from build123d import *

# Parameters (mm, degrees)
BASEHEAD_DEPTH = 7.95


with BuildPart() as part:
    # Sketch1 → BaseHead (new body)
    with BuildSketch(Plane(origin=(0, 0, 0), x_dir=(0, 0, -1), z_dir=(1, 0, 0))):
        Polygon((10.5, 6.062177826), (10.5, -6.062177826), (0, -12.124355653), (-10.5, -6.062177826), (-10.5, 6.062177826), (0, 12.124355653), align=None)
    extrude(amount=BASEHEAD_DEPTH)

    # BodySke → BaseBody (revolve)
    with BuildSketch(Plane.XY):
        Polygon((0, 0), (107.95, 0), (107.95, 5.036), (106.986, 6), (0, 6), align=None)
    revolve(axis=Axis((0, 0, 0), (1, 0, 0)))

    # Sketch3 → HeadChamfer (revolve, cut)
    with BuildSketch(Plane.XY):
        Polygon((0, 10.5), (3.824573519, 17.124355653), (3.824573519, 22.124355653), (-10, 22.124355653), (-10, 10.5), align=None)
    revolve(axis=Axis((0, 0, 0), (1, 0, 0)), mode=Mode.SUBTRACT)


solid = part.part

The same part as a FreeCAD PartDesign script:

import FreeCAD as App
import Part
import Sketcher
from FreeCAD import Vector
Q = App.Units.Quantity


def add_polygon(sketch, points):
    """Adds a closed chain of lines whose ends are joined by coincident constraints."""
    first, n = sketch.GeometryCount, len(points)
    for a, b in zip(points, points[1:] + points[:1]):
        sketch.addGeometry(Part.LineSegment(App.Vector(*a, 0), App.Vector(*b, 0)), False)
    for i in range(n):
        sketch.addConstraint(Sketcher.Constraint("Coincident", first + i, 2, first + (i + 1) % n, 1))

doc = App.newDocument("Part")
body = doc.addObject("PartDesign::Body", "Body")

sketch1 = body.newObject("Sketcher::SketchObject", "Sketch")
sketch1.AttachmentSupport = (doc.getObject("YZ_Plane"), [""])
sketch1.MapMode = "FlatFace"
add_polygon(sketch1, [(-6, -10), (6, -10), (12, 0), (6, 10), (-6, 10), (-12, 0)])
sketch1.addConstraint(Sketcher.Constraint("Horizontal", 0))
sketch1.addConstraint(Sketcher.Constraint("Horizontal", 3))
sketch1.addConstraint(Sketcher.Constraint("Symmetric", 0, 2, 3, 2, -1, 1))
sketch1.addConstraint(Sketcher.Constraint("Symmetric", 1, 2, 4, 2, -1, 1))
sketch1.addConstraint(Sketcher.Constraint("PointOnObject", 1, 2, -1))
sketch1.addConstraint(Sketcher.Constraint("Parallel", 2, 5))
sketch1.addConstraint(Sketcher.Constraint("Vertical", 0, 2, 2, 2))
sketch1.addConstraint(Sketcher.Constraint("Angle", 1, Q("60 deg")))
sketch1.addConstraint(Sketcher.Constraint("DistanceY", 0, 2, 2, 2, 21.0))
sketch1.addConstraint(Sketcher.Constraint("DistanceX", 0, 1, 0, 2, 12.124356))
pad1 = body.newObject("PartDesign::Pad", "Pad")
pad1.Profile = sketch1
pad1.Length = 7.95

sketch2 = body.newObject("Sketcher::SketchObject", "Sketch001")
sketch2.AttachmentSupport = (doc.getObject("XY_Plane"), [""])
sketch2.MapMode = "FlatFace"
add_polygon(sketch2, [(0, 0), (108, 0), (108, 5), (107, 6), (0, 6)])
sketch2.addConstraint(Sketcher.Constraint("Horizontal", 0))
sketch2.addConstraint(Sketcher.Constraint("Vertical", 1))
sketch2.addConstraint(Sketcher.Constraint("Horizontal", 3))
sketch2.addConstraint(Sketcher.Constraint("Vertical", 4))
sketch2.addConstraint(Sketcher.Constraint("Coincident", 4, 2, -1, 1))
sketch2.addConstraint(Sketcher.Constraint("DistanceY", 4, 2, 4, 1, 6.0))
sketch2.addConstraint(Sketcher.Constraint("Angle", 2, Q("135 deg")))
sketch2.addConstraint(Sketcher.Constraint("DistanceX", 0, 1, 0, 2, 107.95))
sketch2.addConstraint(Sketcher.Constraint("DistanceX", 3, 2, 3, 1, 106.986))
revolution = body.newObject("PartDesign::Revolution", "Revolution")
revolution.Profile = sketch2
revolution.ReferenceAxis = (sketch2, ["H_Axis"])
revolution.Angle = 360

sketch3 = body.newObject("Sketcher::SketchObject", "Sketch002")
sketch3.AttachmentSupport = (doc.getObject("XY_Plane"), [""])
sketch3.MapMode = "FlatFace"
add_polygon(sketch3, [(0, 10), (4, 17), (4, 22), (-10, 22), (-10, 10)])
sketch3.addConstraint(Sketcher.Constraint("Vertical", 1))
sketch3.addConstraint(Sketcher.Constraint("Horizontal", 2))
sketch3.addConstraint(Sketcher.Constraint("Vertical", 3))
sketch3.addConstraint(Sketcher.Constraint("Horizontal", 4))
sketch3.addConstraint(Sketcher.Constraint("PointOnObject", 4, 2, -2))
sketch3.addConstraint(Sketcher.Constraint("DistanceX", 4, 1, 4, 2, 10.0))
sketch3.addConstraint(Sketcher.Constraint("DistanceY", 1, 1, 1, 2, 5.0))
sketch3.addConstraint(Sketcher.Constraint("Angle", 0, Q("60 deg")))
sketch3.addConstraint(Sketcher.Constraint("DistanceY", -1, 1, 3, 2, 10.5))
sketch3.addConstraint(Sketcher.Constraint("DistanceX", 2, 2, 2, 1, 13.824574))
groove = body.newObject("PartDesign::Groove", "Groove")
groove.Profile = sketch3
groove.ReferenceAxis = (sketch3, ["H_Axis"])
groove.Angle = 360

doc.recompute()
